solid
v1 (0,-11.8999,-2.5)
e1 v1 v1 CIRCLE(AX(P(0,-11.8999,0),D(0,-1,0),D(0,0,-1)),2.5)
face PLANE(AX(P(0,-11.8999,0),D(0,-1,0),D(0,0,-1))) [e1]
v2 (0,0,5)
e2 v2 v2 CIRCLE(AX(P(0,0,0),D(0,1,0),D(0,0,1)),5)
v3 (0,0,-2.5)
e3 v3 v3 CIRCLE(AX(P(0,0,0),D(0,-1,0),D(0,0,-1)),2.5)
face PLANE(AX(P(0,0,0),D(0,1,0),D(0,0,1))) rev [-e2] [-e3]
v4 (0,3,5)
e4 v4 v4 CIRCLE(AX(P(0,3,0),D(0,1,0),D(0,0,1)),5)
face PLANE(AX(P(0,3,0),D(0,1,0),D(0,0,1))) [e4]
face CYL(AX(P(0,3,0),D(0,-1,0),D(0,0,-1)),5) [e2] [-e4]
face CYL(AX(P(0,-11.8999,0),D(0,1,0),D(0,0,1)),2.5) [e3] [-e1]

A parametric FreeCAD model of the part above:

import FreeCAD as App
import Part
import Sketcher
Q = App.Units.Quantity

doc = App.newDocument("Part")
body = doc.addObject("PartDesign::Body", "Body")

# Sketch on XZ plane
sketch1 = doc.addObject("Sketcher::SketchObject", "Sketch")
body.addObject(sketch1)
sketch1.AttachmentSupport = (doc.XZ_Plane, [""])
sketch1.MapMode = "FlatFace"
sketch1.addGeometry(Part.Circle(App.Vector(0, 0, 0), App.Vector(0, 0, 1), 5), False)
sketch1.addConstraint(Sketcher.Constraint("Coincident", 0, 3, -1, 1))
sketch1.addConstraint(Sketcher.Constraint("Diameter", 0, Q("10 mm")))
pad1 = doc.addObject("PartDesign::Pad", "Pad")
body.addObject(pad1)
pad1.Profile = sketch1
pad1.Length = 3
pad1.Reversed = True

# Sketch on XZ plane
sketch2 = doc.addObject("Sketcher::SketchObject", "Sketch001")
body.addObject(sketch2)
sketch2.AttachmentSupport = (doc.XZ_Plane, [""])
sketch2.MapMode = "FlatFace"
sketch2.addGeometry(Part.Circle(App.Vector(0, 0, 0), App.Vector(0, 0, 1), 2.5), False)
sketch2.addConstraint(Sketcher.Constraint("Coincident", 0, 3, -1, 1))
sketch2.addConstraint(Sketcher.Constraint("Diameter", 0, Q("5 mm")))
pad2 = doc.addObject("PartDesign::Pad", "Pad001")
body.addObject(pad2)
pad2.Profile = sketch2
pad2.Length = 11.8999

doc.recompute()
